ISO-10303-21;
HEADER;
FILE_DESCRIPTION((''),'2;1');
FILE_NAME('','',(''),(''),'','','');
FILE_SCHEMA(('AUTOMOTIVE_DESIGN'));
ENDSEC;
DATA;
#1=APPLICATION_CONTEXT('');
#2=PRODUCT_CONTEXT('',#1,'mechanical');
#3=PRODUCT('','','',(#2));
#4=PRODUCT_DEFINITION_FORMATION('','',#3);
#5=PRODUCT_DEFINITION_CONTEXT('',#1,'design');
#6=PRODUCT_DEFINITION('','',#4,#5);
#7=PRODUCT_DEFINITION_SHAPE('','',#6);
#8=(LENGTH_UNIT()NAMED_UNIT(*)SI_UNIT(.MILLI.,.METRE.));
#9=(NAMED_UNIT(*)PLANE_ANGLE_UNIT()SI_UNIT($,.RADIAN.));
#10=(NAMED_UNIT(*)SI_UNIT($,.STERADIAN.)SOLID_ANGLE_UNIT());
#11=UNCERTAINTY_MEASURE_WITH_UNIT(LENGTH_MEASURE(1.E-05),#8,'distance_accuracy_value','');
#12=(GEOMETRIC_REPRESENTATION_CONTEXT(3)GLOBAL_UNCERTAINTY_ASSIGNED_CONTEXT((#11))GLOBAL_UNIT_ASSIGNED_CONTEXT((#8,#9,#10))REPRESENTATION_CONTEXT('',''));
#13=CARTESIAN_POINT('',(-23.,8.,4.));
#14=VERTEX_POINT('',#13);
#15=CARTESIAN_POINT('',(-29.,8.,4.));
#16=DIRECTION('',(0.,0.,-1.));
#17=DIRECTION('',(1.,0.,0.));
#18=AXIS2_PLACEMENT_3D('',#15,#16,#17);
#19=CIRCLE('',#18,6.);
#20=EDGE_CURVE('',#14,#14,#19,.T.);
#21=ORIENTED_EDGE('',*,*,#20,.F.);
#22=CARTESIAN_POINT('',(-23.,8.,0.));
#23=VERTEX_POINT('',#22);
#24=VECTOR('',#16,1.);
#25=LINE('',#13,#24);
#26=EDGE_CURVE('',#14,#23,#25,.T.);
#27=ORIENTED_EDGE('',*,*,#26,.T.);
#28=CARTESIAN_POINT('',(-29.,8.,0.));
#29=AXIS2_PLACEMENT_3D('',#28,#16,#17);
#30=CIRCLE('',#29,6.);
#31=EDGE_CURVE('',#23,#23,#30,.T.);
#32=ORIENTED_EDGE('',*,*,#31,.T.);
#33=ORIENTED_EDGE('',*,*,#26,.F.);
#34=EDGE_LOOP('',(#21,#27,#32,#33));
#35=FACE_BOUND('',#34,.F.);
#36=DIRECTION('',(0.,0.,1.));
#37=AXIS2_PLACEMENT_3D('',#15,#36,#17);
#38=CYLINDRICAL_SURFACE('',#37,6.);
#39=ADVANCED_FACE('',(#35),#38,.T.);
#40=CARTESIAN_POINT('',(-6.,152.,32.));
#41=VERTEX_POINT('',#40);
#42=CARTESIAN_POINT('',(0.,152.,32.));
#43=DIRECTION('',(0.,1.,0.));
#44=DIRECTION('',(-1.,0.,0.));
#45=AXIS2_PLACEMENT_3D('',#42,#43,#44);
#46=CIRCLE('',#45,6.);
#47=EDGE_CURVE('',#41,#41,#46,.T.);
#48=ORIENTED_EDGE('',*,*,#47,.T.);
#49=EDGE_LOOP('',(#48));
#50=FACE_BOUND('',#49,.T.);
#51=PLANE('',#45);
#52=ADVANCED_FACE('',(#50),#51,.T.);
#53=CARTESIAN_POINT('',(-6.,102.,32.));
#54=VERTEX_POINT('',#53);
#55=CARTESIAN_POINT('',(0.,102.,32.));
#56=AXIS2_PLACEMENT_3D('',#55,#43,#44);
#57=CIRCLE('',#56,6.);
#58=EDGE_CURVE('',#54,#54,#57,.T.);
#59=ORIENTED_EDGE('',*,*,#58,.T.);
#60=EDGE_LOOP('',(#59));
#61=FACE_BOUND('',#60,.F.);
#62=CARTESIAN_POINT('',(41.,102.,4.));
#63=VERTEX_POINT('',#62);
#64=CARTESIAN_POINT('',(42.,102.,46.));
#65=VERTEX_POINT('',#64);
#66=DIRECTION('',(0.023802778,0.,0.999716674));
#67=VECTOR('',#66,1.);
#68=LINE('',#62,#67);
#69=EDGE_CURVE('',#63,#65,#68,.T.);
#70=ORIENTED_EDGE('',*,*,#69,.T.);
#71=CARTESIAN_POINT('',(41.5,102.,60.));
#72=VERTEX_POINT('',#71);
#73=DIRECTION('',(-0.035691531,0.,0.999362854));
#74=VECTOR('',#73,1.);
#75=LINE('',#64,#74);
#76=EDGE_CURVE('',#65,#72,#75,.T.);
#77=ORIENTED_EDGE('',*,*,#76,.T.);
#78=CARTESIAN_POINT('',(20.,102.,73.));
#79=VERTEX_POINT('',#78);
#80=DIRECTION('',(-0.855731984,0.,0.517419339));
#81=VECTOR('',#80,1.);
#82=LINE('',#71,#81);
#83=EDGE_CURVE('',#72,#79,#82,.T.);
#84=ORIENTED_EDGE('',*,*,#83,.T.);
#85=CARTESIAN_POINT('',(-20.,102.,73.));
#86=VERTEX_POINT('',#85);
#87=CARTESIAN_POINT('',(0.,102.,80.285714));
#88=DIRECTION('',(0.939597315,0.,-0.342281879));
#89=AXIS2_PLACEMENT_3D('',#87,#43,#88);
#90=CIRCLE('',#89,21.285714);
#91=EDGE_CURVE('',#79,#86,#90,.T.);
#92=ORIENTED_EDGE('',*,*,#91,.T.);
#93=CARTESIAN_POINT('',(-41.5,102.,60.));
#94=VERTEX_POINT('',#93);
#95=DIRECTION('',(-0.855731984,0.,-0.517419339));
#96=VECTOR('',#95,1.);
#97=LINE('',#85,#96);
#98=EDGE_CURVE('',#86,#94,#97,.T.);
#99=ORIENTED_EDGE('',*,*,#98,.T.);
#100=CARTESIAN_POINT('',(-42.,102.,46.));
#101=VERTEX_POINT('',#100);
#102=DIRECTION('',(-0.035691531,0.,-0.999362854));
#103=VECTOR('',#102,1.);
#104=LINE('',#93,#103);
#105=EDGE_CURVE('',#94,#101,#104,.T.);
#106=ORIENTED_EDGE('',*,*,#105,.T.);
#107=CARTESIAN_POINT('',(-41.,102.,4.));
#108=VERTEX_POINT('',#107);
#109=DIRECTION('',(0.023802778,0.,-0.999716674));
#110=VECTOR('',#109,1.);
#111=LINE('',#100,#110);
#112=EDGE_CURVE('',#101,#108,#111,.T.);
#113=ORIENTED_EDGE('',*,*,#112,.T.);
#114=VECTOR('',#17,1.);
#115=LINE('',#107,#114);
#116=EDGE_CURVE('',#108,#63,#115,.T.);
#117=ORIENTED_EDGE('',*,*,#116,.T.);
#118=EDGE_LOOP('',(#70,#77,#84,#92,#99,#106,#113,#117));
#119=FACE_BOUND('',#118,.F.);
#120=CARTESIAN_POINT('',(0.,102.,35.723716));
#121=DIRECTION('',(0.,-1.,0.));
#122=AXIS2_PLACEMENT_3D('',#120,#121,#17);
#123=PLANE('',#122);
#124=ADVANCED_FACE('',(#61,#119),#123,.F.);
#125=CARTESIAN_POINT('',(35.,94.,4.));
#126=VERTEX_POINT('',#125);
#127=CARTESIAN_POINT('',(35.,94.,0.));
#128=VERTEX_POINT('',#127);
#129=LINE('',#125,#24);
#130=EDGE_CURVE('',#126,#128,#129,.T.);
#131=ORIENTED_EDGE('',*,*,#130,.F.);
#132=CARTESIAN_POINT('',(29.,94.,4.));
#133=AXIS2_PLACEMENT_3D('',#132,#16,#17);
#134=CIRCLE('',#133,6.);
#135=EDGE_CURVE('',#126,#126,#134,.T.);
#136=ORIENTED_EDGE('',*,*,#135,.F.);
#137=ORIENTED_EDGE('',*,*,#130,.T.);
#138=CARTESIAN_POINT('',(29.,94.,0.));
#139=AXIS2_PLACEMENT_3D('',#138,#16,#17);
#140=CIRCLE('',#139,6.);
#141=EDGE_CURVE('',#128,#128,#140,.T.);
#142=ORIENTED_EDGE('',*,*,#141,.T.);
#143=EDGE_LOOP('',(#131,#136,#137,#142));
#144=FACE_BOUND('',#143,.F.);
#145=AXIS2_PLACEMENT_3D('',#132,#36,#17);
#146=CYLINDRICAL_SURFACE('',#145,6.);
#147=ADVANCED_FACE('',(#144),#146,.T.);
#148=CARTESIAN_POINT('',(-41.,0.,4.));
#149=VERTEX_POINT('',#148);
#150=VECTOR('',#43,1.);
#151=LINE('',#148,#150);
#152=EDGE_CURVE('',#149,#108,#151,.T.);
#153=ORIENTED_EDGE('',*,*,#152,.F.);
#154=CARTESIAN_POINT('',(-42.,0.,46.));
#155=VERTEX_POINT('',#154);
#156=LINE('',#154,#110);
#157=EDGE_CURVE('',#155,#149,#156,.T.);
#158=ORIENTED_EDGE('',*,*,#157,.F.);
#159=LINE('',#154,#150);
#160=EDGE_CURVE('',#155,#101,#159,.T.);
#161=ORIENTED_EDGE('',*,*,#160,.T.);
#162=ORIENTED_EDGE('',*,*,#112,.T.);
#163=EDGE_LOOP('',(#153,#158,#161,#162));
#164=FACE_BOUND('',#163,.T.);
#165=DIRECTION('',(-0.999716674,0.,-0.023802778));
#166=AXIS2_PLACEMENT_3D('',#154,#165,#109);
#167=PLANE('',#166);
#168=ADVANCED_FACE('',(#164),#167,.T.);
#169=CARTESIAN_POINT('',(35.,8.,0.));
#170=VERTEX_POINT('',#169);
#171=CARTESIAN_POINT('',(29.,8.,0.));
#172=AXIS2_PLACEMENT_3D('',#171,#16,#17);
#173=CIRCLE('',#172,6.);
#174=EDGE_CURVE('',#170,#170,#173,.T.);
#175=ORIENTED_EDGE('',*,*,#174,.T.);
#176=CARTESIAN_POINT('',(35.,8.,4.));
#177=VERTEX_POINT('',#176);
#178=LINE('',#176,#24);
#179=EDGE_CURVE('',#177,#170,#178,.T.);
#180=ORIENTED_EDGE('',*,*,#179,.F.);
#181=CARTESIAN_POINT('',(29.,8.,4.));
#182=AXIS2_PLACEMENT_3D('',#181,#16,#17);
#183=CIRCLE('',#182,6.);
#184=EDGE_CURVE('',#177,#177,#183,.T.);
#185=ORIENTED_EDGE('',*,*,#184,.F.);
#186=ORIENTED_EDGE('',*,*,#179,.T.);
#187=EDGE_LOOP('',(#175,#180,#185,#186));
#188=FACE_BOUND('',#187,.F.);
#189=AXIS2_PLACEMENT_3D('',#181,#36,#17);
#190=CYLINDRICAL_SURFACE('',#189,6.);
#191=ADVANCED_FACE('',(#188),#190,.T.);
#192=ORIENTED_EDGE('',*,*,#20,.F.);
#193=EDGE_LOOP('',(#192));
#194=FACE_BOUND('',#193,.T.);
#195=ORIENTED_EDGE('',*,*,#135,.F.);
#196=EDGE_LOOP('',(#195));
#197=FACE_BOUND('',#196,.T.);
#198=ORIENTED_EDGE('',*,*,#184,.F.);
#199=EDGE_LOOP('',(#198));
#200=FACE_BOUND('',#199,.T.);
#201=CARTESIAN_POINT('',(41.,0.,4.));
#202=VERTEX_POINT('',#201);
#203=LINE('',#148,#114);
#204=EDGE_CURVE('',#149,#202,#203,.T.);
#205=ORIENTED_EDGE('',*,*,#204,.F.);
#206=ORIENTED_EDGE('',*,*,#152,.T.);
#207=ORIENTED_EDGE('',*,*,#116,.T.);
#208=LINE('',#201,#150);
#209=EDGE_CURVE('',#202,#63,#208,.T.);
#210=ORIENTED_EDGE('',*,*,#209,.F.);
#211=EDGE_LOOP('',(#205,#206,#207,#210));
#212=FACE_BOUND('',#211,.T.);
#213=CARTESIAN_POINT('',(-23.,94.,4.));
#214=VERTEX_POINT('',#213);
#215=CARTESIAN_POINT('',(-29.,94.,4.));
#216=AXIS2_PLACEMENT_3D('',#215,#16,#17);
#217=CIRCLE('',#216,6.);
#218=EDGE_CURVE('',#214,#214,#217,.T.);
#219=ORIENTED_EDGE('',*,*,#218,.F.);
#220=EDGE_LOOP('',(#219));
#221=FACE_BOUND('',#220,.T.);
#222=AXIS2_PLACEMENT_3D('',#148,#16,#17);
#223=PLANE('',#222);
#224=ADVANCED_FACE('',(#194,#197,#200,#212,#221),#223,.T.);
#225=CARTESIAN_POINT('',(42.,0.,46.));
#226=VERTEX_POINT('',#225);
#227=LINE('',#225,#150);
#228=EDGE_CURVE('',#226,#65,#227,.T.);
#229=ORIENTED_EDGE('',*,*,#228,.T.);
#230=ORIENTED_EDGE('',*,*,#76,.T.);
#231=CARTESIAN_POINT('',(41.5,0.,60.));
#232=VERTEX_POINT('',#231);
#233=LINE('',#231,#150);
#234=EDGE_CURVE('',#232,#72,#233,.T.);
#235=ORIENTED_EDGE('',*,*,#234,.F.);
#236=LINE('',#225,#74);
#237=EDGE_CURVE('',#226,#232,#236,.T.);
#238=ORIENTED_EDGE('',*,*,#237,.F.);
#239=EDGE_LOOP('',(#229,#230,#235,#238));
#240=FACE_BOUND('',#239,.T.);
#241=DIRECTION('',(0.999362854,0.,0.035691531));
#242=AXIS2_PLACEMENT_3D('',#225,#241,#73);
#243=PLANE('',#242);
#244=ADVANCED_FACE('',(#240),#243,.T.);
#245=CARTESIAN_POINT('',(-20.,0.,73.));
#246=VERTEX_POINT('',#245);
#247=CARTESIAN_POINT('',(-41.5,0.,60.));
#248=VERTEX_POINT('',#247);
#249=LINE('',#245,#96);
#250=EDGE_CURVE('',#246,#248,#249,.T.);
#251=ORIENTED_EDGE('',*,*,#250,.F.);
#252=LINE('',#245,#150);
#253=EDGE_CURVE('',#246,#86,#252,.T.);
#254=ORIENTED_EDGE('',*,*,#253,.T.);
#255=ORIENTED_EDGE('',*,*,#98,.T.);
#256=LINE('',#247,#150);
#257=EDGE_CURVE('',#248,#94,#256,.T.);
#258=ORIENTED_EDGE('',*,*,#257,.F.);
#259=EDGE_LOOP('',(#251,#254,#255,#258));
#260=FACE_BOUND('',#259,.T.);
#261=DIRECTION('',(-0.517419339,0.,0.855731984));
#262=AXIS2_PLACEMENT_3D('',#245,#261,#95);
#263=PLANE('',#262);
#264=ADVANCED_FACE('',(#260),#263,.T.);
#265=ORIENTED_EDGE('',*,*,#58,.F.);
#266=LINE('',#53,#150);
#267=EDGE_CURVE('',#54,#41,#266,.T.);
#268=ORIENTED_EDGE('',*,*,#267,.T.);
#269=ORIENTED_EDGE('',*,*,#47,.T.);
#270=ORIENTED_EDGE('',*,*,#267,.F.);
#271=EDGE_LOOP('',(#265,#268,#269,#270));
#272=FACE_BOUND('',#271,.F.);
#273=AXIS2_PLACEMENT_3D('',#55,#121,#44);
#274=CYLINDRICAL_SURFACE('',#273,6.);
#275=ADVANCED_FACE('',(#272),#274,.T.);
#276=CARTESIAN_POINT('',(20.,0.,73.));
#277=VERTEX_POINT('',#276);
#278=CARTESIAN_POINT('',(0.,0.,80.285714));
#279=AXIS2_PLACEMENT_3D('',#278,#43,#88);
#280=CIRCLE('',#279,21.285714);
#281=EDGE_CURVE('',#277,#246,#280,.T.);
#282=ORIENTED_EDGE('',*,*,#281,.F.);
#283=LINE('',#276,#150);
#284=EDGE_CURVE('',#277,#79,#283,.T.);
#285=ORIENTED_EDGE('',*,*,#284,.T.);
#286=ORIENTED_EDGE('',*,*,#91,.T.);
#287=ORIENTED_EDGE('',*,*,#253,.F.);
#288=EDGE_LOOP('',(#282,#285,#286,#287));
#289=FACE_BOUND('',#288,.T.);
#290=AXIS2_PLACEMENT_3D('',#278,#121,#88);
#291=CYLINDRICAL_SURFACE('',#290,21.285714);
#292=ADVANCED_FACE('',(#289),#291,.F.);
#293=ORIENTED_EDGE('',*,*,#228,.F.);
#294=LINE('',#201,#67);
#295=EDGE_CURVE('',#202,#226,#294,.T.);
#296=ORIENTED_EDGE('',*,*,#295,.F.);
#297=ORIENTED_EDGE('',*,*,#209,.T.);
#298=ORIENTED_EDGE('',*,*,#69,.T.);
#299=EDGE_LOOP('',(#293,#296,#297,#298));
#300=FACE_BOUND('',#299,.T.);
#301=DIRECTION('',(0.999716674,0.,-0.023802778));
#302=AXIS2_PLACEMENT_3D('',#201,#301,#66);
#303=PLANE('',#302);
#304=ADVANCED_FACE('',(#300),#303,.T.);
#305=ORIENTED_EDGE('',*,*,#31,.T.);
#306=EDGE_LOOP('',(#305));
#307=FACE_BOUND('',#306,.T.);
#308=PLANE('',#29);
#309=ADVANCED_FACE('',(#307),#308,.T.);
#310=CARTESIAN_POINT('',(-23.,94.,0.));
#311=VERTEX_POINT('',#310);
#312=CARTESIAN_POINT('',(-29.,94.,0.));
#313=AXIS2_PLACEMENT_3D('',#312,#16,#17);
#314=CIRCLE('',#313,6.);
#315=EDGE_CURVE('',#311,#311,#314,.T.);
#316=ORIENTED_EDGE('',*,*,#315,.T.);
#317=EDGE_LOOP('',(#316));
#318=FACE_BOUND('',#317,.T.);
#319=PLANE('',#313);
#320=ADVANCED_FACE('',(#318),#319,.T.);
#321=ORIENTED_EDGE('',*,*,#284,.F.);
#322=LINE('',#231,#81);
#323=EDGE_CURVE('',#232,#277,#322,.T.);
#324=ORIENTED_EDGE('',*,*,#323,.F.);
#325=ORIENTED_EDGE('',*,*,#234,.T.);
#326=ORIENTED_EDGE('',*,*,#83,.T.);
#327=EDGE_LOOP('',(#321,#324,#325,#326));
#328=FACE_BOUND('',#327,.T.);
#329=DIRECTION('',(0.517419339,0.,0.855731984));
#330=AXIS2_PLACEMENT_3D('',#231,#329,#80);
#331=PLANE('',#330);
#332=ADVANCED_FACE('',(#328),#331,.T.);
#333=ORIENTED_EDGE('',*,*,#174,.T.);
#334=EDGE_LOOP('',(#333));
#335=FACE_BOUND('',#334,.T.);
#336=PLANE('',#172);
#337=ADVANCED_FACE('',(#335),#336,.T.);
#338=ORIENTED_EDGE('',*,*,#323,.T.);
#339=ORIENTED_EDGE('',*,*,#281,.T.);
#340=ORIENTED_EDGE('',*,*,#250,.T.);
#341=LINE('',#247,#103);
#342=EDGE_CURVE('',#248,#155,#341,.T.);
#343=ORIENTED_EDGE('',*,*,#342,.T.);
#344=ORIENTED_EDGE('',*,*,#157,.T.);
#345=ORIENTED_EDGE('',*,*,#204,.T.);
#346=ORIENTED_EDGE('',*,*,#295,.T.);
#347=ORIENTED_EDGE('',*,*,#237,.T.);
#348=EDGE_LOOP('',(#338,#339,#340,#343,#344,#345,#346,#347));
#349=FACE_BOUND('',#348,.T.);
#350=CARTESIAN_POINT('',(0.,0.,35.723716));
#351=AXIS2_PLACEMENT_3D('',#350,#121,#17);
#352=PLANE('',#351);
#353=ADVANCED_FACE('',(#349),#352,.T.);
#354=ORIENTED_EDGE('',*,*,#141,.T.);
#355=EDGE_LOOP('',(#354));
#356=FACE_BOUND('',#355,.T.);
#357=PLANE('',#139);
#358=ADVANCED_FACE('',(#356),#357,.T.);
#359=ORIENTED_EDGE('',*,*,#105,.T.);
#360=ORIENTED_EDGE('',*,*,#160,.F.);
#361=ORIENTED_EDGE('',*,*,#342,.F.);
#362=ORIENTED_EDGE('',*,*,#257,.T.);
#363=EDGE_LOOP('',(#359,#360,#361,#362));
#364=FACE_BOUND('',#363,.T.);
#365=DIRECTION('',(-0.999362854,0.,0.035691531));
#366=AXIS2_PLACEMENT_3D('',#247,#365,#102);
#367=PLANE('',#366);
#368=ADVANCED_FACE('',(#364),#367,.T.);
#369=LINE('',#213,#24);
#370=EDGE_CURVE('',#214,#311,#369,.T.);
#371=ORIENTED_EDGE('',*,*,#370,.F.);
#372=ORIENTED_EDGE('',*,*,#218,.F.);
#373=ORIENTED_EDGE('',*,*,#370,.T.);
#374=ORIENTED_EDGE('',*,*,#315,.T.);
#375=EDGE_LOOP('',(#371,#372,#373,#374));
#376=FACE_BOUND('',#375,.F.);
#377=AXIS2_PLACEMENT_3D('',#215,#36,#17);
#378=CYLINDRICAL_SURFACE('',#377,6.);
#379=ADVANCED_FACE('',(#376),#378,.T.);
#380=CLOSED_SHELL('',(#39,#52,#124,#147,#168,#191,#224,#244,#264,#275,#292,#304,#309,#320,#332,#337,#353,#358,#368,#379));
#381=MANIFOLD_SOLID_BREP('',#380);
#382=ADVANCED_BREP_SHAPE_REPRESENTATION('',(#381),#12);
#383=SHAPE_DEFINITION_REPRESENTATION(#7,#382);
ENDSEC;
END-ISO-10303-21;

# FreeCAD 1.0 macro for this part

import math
import FreeCAD as App
import Part
import Sketcher
from FreeCAD import Vector

doc = App.newDocument("Part")
params = doc.addObject("Spreadsheet::Sheet", "Params")
for row, (alias, value) in enumerate([
    ("sketch1_width", "82 mm"),
    ("pad1_length", "102 mm"),
    ("sketch2_diameter", "12 mm"),
    ("pad2_length", "50 mm"),
    ("sketch3_diameter", "12 mm"),
    ("pad3_length", "4 mm"),
], start=1):
    params.set(f"A{row}", alias)
    params.set(f"B{row}", "=" + value)
    params.setAlias(f"B{row}", alias)

body = doc.addObject("PartDesign::Body", "Body")

# Sketch on XZ plane
sketch1 = body.newObject("Sketcher::SketchObject", "Sketch")
sketch1.AttachmentSupport = (doc.getObject("XZ_Plane"), [""])
sketch1.MapMode = "FlatFace"
sketch1.addGeometry([
    Part.LineSegment(Vector(-41, 4, 0), Vector(41, 4, 0)),  # 0
    Part.LineSegment(Vector(41, 4, 0), Vector(42, 46, 0)),  # 1
    Part.LineSegment(Vector(42, 46, 0), Vector(42, 60, 0)),  # 2
    Part.LineSegment(Vector(42, 60, 0), Vector(20, 73, 0)),  # 3
    Part.ArcOfCircle(Part.Circle(Vector(0, 80, 0), Vector(0, 0, 1), 21), math.radians(-160), math.radians(-20)),  # 4
    Part.LineSegment(Vector(-20, 73, 0), Vector(-42, 60, 0)),  # 5
    Part.LineSegment(Vector(-42, 60, 0), Vector(-42, 46, 0)),  # 6
    Part.LineSegment(Vector(-42, 46, 0), Vector(-41, 4, 0)),  # 7
], False)
sketch1.addConstraint([
    Sketcher.Constraint("Coincident", 0, 2, 1, 1),
    Sketcher.Constraint("Coincident", 1, 2, 2, 1),
    Sketcher.Constraint("Coincident", 2, 2, 3, 1),
    Sketcher.Constraint("Coincident", 3, 2, 4, 2),
    Sketcher.Constraint("Coincident", 4, 1, 5, 1),
    Sketcher.Constraint("Coincident", 5, 2, 6, 1),
    Sketcher.Constraint("Coincident", 6, 2, 7, 1),
    Sketcher.Constraint("Coincident", 7, 2, 0, 1),
    Sketcher.Constraint("Horizontal", 0),
    Sketcher.Constraint("Symmetric", 3, 2, 4, 1, -2),
    Sketcher.Constraint("Symmetric", 2, 2, 5, 2, -2),
    Sketcher.Constraint("Symmetric", 1, 2, 6, 2, -2),
    Sketcher.Constraint("Equal", 1, 7),
    Sketcher.Constraint("DistanceX", 0, 1, 0, 2, 82.0),
    Sketcher.Constraint("DistanceY", -1, 1, 0, 2, 4.0),
    Sketcher.Constraint("DistanceX", -1, 1, 1, 2, 42.0),
    Sketcher.Constraint("DistanceY", -1, 1, 1, 2, 46.0),
    Sketcher.Constraint("DistanceY", -1, 1, 2, 2, 60.0),
    Sketcher.Constraint("DistanceX", -1, 1, 3, 2, 20.0),
    Sketcher.Constraint("DistanceY", -1, 1, 3, 2, 73.0),
    Sketcher.Constraint("DistanceX", 5, 2, 2, 2, 83.0),
    Sketcher.Constraint("Radius", 4, 21.285714),
])
sketch1.setExpression("Constraints[13]", "Params.sketch1_width")
pad1 = body.newObject("PartDesign::Pad", "Pad")
pad1.Profile = sketch1
pad1.setExpression("Length", "Params.pad1_length")
pad1.Reversed = True

# Sketch on XZ plane
sketch2 = body.newObject("Sketcher::SketchObject", "Sketch001")
sketch2.AttachmentSupport = (doc.getObject("XZ_Plane"), [""])
sketch2.MapMode = "FlatFace"
sketch2.AttachmentOffset = App.Placement(Vector(0, 0, -102), App.Rotation())
sketch2.addGeometry(Part.Circle(Vector(0, 32, 0), Vector(0, 0, 1), 6), False)
sketch2.addConstraint([
    Sketcher.Constraint("PointOnObject", 0, 3, -2),
    Sketcher.Constraint("Diameter", 0, 12.0),
    Sketcher.Constraint("DistanceY", -1, 1, 0, 3, 32.0),
])
sketch2.setExpression("Constraints[1]", "Params.sketch2_diameter")
pad2 = body.newObject("PartDesign::Pad", "Pad001")
pad2.Profile = sketch2
pad2.setExpression("Length", "Params.pad2_length")
pad2.Reversed = True

# Sketch on XY plane
sketch3 = body.newObject("Sketcher::SketchObject", "Sketch002")
sketch3.AttachmentSupport = (doc.getObject("XY_Plane"), [""])
sketch3.MapMode = "FlatFace"
sketch3.AttachmentOffset = App.Placement(Vector(0, 0, 4), App.Rotation())
sketch3.addGeometry([
    Part.Circle(Vector(29, 94, 0), Vector(0, 0, 1), 6),
    Part.Circle(Vector(-29, 94, 0), Vector(0, 0, 1), 6),
    Part.Circle(Vector(-29, 8, 0), Vector(0, 0, 1), 6),
    Part.Circle(Vector(29, 8, 0), Vector(0, 0, 1), 6),
], False)
sketch3.addConstraint([
    Sketcher.Constraint("Equal", 0, 1),
    Sketcher.Constraint("Equal", 1, 2),
    Sketcher.Constraint("Equal", 2, 3),
    Sketcher.Constraint("Symmetric", 0, 3, 1, 3, -2),
    Sketcher.Constraint("Symmetric", 2, 3, 3, 3, -2),
    Sketcher.Constraint("Vertical", 1, 3, 2, 3),
    Sketcher.Constraint("Diameter", 0, 12.0),
    Sketcher.Constraint("DistanceX", -1, 1, 0, 3, 29.0),
    Sketcher.Constraint("DistanceY", -1, 1, 0, 3, 94.0),
    Sketcher.Constraint("DistanceY", -1, 1, 2, 3, 8.0),
])
sketch3.setExpression("Constraints[6]", "Params.sketch3_diameter")
pad3 = body.newObject("PartDesign::Pad", "Pad002")
pad3.Profile = sketch3
pad3.setExpression("Length", "Params.pad3_length")
pad3.Reversed = True

doc.recompute()
